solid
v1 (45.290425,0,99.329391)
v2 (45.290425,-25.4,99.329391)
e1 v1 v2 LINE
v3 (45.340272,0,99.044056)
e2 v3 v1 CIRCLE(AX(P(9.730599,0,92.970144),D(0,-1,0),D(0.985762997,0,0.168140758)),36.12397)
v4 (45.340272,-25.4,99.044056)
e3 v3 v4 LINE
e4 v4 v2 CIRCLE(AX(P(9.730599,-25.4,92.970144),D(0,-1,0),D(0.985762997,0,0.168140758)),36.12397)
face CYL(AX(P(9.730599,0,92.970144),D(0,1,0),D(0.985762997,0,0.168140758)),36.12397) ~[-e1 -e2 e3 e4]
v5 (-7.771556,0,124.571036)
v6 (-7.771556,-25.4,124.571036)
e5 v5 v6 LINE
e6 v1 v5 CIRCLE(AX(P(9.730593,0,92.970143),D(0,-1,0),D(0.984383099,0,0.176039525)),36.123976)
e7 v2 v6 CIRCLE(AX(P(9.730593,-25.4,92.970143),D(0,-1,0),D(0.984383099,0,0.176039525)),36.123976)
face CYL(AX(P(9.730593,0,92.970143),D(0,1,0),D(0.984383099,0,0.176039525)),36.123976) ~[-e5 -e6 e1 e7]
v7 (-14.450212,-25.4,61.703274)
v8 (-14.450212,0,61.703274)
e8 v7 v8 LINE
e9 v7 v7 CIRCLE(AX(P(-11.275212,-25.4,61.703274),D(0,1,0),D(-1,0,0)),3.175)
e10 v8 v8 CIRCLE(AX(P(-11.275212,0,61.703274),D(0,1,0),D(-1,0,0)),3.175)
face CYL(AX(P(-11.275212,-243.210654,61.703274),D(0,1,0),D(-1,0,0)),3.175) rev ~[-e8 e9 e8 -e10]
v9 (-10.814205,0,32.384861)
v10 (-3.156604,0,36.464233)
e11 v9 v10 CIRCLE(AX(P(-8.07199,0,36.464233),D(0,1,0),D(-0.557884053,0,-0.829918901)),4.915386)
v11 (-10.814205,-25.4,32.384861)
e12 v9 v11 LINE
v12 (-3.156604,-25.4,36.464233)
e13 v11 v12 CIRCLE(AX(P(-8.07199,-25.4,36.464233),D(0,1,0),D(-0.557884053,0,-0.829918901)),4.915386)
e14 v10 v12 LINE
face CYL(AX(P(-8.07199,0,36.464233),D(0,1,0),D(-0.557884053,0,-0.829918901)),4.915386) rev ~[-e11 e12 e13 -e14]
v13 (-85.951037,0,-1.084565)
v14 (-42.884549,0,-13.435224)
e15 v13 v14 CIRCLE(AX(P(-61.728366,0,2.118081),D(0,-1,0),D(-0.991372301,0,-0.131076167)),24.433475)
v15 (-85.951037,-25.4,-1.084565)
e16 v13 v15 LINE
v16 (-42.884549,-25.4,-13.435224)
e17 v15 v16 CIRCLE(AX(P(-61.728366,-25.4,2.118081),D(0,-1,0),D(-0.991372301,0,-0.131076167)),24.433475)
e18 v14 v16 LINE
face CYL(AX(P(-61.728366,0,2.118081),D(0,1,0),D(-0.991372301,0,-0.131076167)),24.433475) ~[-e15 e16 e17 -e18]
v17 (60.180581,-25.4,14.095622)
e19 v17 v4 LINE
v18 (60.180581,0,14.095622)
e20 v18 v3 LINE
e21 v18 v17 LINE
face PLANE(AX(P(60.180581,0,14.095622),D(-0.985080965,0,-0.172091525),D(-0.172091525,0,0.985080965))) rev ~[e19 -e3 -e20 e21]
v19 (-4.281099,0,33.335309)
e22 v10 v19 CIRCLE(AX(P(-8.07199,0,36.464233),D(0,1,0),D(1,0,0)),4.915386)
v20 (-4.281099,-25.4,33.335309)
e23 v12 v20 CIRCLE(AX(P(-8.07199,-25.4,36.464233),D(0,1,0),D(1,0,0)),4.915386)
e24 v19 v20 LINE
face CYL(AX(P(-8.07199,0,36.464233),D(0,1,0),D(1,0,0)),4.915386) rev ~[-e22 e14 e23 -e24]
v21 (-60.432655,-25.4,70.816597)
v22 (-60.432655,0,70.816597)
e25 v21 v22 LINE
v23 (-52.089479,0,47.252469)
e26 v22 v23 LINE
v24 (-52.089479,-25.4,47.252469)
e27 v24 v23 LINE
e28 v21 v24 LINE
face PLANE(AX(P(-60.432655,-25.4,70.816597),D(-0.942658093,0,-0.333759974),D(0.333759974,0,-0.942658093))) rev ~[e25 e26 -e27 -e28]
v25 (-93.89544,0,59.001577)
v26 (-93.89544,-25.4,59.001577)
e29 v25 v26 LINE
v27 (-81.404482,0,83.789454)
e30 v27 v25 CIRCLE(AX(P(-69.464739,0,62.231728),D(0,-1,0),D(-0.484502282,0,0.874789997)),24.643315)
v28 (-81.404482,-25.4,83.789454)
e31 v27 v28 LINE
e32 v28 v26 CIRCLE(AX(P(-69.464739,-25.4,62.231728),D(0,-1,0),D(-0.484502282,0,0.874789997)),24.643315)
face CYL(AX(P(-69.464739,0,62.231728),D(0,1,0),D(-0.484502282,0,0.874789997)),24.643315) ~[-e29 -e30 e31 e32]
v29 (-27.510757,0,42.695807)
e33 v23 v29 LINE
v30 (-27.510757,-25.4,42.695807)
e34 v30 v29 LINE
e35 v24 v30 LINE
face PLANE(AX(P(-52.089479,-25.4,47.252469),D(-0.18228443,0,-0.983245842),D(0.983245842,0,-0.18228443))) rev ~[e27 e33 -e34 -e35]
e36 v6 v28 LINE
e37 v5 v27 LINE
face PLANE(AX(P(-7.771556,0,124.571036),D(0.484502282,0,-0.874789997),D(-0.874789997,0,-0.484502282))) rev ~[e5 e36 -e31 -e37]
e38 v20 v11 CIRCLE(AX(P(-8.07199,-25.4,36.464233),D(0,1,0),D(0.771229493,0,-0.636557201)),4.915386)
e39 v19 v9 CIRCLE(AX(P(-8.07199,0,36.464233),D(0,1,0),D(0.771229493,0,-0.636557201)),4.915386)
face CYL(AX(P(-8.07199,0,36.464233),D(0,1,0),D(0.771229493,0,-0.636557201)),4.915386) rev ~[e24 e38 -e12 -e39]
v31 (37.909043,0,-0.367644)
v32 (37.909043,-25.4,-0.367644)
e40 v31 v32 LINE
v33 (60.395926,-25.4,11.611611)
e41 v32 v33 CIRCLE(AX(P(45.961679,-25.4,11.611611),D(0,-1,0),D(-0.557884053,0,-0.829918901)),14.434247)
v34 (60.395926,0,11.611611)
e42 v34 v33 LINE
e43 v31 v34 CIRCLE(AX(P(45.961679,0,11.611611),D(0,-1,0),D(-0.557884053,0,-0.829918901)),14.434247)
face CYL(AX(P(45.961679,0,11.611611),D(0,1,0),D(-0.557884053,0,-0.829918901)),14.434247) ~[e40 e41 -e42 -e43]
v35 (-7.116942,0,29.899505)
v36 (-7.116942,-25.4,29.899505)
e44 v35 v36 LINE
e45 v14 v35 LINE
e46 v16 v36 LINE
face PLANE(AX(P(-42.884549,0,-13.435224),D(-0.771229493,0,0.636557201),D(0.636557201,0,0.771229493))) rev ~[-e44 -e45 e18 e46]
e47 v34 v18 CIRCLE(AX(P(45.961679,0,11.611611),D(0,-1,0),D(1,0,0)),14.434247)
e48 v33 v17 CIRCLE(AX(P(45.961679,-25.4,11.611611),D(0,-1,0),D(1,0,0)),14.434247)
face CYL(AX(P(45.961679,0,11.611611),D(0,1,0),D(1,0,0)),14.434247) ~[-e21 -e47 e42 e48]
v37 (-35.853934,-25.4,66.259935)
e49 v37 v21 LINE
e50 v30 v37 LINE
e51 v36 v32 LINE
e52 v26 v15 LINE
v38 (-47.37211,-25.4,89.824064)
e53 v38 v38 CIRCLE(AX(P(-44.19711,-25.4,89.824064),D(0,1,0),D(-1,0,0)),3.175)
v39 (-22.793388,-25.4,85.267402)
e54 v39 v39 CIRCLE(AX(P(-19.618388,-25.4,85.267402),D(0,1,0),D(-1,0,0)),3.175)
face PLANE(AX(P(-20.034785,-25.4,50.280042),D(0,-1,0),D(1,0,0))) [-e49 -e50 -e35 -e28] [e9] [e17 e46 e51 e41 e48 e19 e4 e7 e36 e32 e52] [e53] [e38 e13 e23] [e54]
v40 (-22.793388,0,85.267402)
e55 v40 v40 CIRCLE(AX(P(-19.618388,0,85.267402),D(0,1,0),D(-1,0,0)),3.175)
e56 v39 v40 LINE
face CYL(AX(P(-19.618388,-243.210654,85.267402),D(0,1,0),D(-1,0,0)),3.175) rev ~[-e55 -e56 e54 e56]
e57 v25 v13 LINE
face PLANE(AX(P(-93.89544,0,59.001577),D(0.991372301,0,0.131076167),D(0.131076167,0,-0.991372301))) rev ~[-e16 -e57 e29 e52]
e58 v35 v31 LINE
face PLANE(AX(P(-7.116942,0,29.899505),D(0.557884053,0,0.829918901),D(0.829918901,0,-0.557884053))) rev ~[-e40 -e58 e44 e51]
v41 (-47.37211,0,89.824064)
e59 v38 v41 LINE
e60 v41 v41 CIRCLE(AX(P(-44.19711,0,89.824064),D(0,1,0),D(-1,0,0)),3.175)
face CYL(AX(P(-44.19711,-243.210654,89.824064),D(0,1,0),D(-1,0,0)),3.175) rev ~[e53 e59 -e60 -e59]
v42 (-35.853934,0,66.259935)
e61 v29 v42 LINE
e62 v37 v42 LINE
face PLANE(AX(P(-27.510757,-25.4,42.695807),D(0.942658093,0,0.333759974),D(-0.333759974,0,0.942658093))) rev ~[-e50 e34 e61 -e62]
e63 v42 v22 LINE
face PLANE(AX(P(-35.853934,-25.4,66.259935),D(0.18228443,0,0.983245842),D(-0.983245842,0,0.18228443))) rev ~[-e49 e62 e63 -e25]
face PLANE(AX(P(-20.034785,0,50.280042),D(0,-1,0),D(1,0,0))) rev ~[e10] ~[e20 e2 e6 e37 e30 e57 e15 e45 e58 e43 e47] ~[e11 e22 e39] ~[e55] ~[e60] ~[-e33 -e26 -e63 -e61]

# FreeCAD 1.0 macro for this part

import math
import FreeCAD as App
import Part
import Sketcher
from FreeCAD import Vector
Q = App.Units.Quantity


def add_polygon(sketch, points):
    """Adds a closed chain of lines whose ends are joined by coincident constraints."""
    first, n = sketch.GeometryCount, len(points)
    for a, b in zip(points, points[1:] + points[:1]):
        sketch.addGeometry(Part.LineSegment(App.Vector(*a, 0), App.Vector(*b, 0)), False)
    for i in range(n):
        sketch.addConstraint(Sketcher.Constraint("Coincident", first + i, 2, first + (i + 1) % n, 1))

doc = App.newDocument("Part")
body = doc.addObject("PartDesign::Body", "Body")

# Sketch on XZ plane
sketch1 = body.newObject("Sketcher::SketchObject", "Sketch")
sketch1.AttachmentSupport = (doc.getObject("XZ_Plane"), [""])
sketch1.MapMode = "FlatFace"
sketch1.addGeometry([
    Part.LineSegment(Vector(-42.884549, -13.435224, 0), Vector(-7.116942, 29.899505, 0)),  # 0
    Part.LineSegment(Vector(-7.116942, 29.899505, 0), Vector(37.909043, -0.367644, 0)),  # 1
    Part.ArcOfCircle(Part.Circle(Vector(45.961679, 11.611611, 0), Vector(0, 0, 1), 14.434247), math.radians(-123.909592), math.radians(0)),  # 2
    Part.ArcOfCircle(Part.Circle(Vector(45.961679, 11.611611, 0), Vector(0, 0, 1), 14.434247), math.radians(0), math.radians(9.909447)),  # 3
    Part.LineSegment(Vector(60.180581, 14.095622, 0), Vector(45.340272, 99.044056, 0)),  # 4
    Part.ArcOfCircle(Part.Circle(Vector(9.730599, 92.970144, 0), Vector(0, 0, 1), 36.12397), math.radians(9.679736), math.radians(10.139158)),  # 5
    Part.ArcOfCircle(Part.Circle(Vector(9.730593, 92.970143, 0), Vector(0, 0, 1), 36.123976), math.radians(10.139158), math.radians(118.979868)),  # 6
    Part.LineSegment(Vector(-7.771556, 124.571036, 0), Vector(-81.404482, 83.789454, 0)),  # 7
    Part.ArcOfCircle(Part.Circle(Vector(-69.464739, 62.231728, 0), Vector(0, 0, 1), 24.643315), math.radians(118.979868), math.radians(187.531784)),  # 8
    Part.LineSegment(Vector(-93.89544, 59.001577, 0), Vector(-85.951037, -1.084565, 0)),  # 9
    Part.ArcOfCircle(Part.Circle(Vector(-61.728366, 2.118081, 0), Vector(0, 0, 1), 24.433475), math.radians(-172.468216), math.radians(-39.535577)),  # 10
    Part.ArcOfCircle(Part.Circle(Vector(-8.07199, 36.464233, 0), Vector(0, 0, 1), 4.915386), math.radians(-39.535575), math.radians(0)),  # 11
    Part.ArcOfCircle(Part.Circle(Vector(-8.07199, 36.464233, 0), Vector(0, 0, 1), 4.915386), math.radians(-123.909592), math.radians(-39.535575)),  # 12
    Part.ArcOfCircle(Part.Circle(Vector(-8.07199, 36.464233, 0), Vector(0, 0, 1), 4.915386), math.radians(0), math.radians(236.090408)),  # 13
], False)
sketch1.addConstraint([
    Sketcher.Constraint("Coincident", 0, 2, 1, 1),
    Sketcher.Constraint("Coincident", 1, 2, 2, 1),
    Sketcher.Constraint("Coincident", 2, 2, 3, 1),
    Sketcher.Constraint("Coincident", 3, 2, 4, 1),
    Sketcher.Constraint("Coincident", 4, 2, 5, 1),
    Sketcher.Constraint("Coincident", 5, 2, 6, 1),
    Sketcher.Constraint("Coincident", 6, 2, 7, 1),
    Sketcher.Constraint("Coincident", 7, 2, 8, 1),
    Sketcher.Constraint("Coincident", 8, 2, 9, 1),
    Sketcher.Constraint("Coincident", 9, 2, 10, 1),
    Sketcher.Constraint("Coincident", 10, 2, 0, 1),
    Sketcher.Constraint("Coincident", 11, 1, 12, 2),
    Sketcher.Constraint("Coincident", 12, 1, 13, 2),
    Sketcher.Constraint("Coincident", 13, 1, 11, 2),
    Sketcher.Constraint("Coincident", 3, 3, 2, 3),
    Sketcher.Constraint("Coincident", 6, 3, 5, 3),
    Sketcher.Constraint("Coincident", 12, 3, 11, 3),
    Sketcher.Constraint("Radius", 5, 36.12397),
    Sketcher.Constraint("Radius", 2, 14.434247),
    Sketcher.Constraint("Radius", 8, 24.643315),
    Sketcher.Constraint("Radius", 10, 24.433475),
    Sketcher.Constraint("Radius", 11, 4.915386),
    Sketcher.Constraint("Radius", 13, 4.915386),
    Sketcher.Constraint("DistanceY", 3, 2, 0, 2, Q("0.6222001 in")),
    Sketcher.Constraint("DistanceX", -1, 1, 5, 3, 9.730599),
    Sketcher.Constraint("DistanceX", 11, 1, -1, 1, 4.281099),
    Sketcher.Constraint("DistanceX", 2, 3, 3, 2, 14.218902),
    Sketcher.Constraint("DistanceX", 8, 2, 8, 3, 24.4307),
    Sketcher.Constraint("Distance", 0, 56.189149),
    Sketcher.Constraint("Distance", 9, 60.609058),
    Sketcher.Constraint("DistanceX", -1, 1, 2, 3, 45.961679),
    Sketcher.Constraint("DistanceY", -1, 1, 2, 3, 11.611611),
    Sketcher.Constraint("DistanceX", 8, 3, -1, 1, 69.464739),
    Sketcher.Constraint("DistanceY", -1, 1, 10, 3, 2.118081),
    Sketcher.Constraint("DistanceX", 11, 3, -1, 1, 8.07199),
    Sketcher.Constraint("DistanceX", 0, 2, -1, 1, 7.116942),
    Sketcher.Constraint("DistanceY", -1, 1, 2, 2, 11.611611),
    Sketcher.Constraint("DistanceY", -1, 1, 5, 2, 99.329391),
    Sketcher.Constraint("DistanceX", 7, 2, -1, 1, 81.404482),
    Sketcher.Constraint("DistanceX", 10, 2, -1, 1, 42.884549),
    Sketcher.Constraint("DistanceY", -1, 1, 11, 1, 33.335309),
    Sketcher.Constraint("DistanceY", -1, 1, 12, 1, 32.384861),
    Sketcher.Constraint("DistanceY", 11, 3, 6, 3, 56.505911),
    Sketcher.Constraint("DistanceY", 1, 2, 0, 2, 30.267149),
    Sketcher.Constraint("DistanceY", 5, 3, 4, 2, 6.073912),
    Sketcher.Constraint("DistanceX", 6, 2, 6, 3, 17.502149),
    Sketcher.Constraint("DistanceY", 8, 3, 6, 2, 62.339309),
    Sketcher.Constraint("DistanceY", -1, 1, 13, 1, 36.464233),
])
pad1 = body.newObject("PartDesign::Pad", "Pad")
pad1.Profile = sketch1
pad1.Length = Q("1 in")

# Sketch on XZ plane
sketch2 = body.newObject("Sketcher::SketchObject", "Sketch001")
sketch2.AttachmentSupport = (doc.getObject("XZ_Plane"), [""])
sketch2.MapMode = "FlatFace"
sketch2.AttachmentOffset = App.Placement(Vector(0, 0, 1 * 25.4), App.Rotation())
add_polygon(sketch2, [(-52, 47), (-36, 66), (-60, 71)])  # lines 0-2
sketch2.addConstraint([
    Sketcher.Constraint("Equal", 0, 1),
    Sketcher.Constraint("Equal", 1, 2),
    Sketcher.Constraint("DistanceX", 2, 2, -1, 1, 52.089479),
    Sketcher.Constraint("DistanceY", -1, 1, 2, 2, 47.252469),
    Sketcher.Constraint("DistanceX", 1, 2, 0, 2, 24.578722),
    Sketcher.Constraint("DistanceY", 0, 2, 1, 2, 4.556661),
])
pocket1 = body.newObject("PartDesign::Pocket", "Pocket")
pocket1.Profile = sketch2
pocket1.Length = Q("1 in")

# Sketch on XZ plane
sketch3 = body.newObject("Sketcher::SketchObject", "Sketch002")
sketch3.AttachmentSupport = (doc.getObject("XZ_Plane"), [""])
sketch3.MapMode = "FlatFace"
sketch3.AttachmentOffset = App.Placement(Vector(0, 0, 1 * 25.4), App.Rotation())
add_polygon(sketch3, [(-28, 43), (-36, 66), (-52, 47)])  # lines 0-2
sketch3.addConstraint([
    Sketcher.Constraint("Equal", 0, 1),
    Sketcher.Constraint("Equal", 1, 2),
    Sketcher.Constraint("DistanceX", 1, 2, -1, 1, 52.089479),
    Sketcher.Constraint("DistanceY", -1, 1, 1, 2, 47.252469),
    Sketcher.Constraint("DistanceY", 2, 2, 0, 2, 23.564128),
    Sketcher.Constraint("DistanceX", 1, 2, 2, 2, 24.578722),
])
pocket2 = body.newObject("PartDesign::Pocket", "Pocket001")
pocket2.Profile = sketch3
pocket2.Length = Q("1 in")

# Sketch on XZ plane
sketch4 = body.newObject("Sketcher::SketchObject", "Sketch003")
sketch4.AttachmentSupport = (doc.getObject("XZ_Plane"), [""])
sketch4.MapMode = "FlatFace"
sketch4.AttachmentOffset = App.Placement(Vector(0, 0, 1 * 25.4), App.Rotation())
sketch4.addGeometry(Part.Circle(Vector(-19.6, 85.3, 0), Vector(0, 0, 1), 3.2), False)
sketch4.addConstraint([
    Sketcher.Constraint("Diameter", 0, Q("0.25 in")),
    Sketcher.Constraint("DistanceX", 0, 3, -1, 1, 19.618388),
    Sketcher.Constraint("DistanceY", -1, 1, 0, 3, 85.267402),
])
doc.recompute()
hole = body.newObject("PartDesign::Hole", "Hole")
hole.Profile = sketch4
hole.ThreadType = "None"
hole.Diameter = Q("0.25 in")
hole.DepthType = "ThroughAll"

# Sketch on XZ plane
sketch5 = body.newObject("Sketcher::SketchObject", "Sketch004")
sketch5.AttachmentSupport = (doc.getObject("XZ_Plane"), [""])
sketch5.MapMode = "FlatFace"
sketch5.AttachmentOffset = App.Placement(Vector(0, 0, 1 * 25.4), App.Rotation())
sketch5.addGeometry(Part.Circle(Vector(-44.2, 89.8, 0), Vector(0, 0, 1), 3.2), False)
sketch5.addConstraint([
    Sketcher.Constraint("Diameter", 0, Q("0.25 in")),
    Sketcher.Constraint("DistanceX", 0, 3, -1, 1, 44.19711),
    Sketcher.Constraint("DistanceY", -1, 1, 0, 3, 89.824064),
])
doc.recompute()
hole2 = body.newObject("PartDesign::Hole", "Hole001")
hole2.Profile = sketch5
hole2.ThreadType = "None"
hole2.Diameter = Q("0.25 in")
hole2.DepthType = "ThroughAll"

# Sketch on XZ plane
sketch6 = body.newObject("Sketcher::SketchObject", "Sketch005")
sketch6.AttachmentSupport = (doc.getObject("XZ_Plane"), [""])
sketch6.MapMode = "FlatFace"
sketch6.AttachmentOffset = App.Placement(Vector(0, 0, 1 * 25.4), App.Rotation())
sketch6.addGeometry(Part.Circle(Vector(-11.3, 61.7, 0), Vector(0, 0, 1), 3.2), False)
sketch6.addConstraint([
    Sketcher.Constraint("Diameter", 0, Q("0.25 in")),
    Sketcher.Constraint("DistanceX", 0, 3, -1, 1, 11.275212),
    Sketcher.Constraint("DistanceY", -1, 1, 0, 3, 61.703274),
])
doc.recompute()
hole3 = body.newObject("PartDesign::Hole", "Hole002")
hole3.Profile = sketch6
hole3.ThreadType = "None"
hole3.Diameter = Q("0.25 in")
hole3.DepthType = "ThroughAll"

doc.recompute()
